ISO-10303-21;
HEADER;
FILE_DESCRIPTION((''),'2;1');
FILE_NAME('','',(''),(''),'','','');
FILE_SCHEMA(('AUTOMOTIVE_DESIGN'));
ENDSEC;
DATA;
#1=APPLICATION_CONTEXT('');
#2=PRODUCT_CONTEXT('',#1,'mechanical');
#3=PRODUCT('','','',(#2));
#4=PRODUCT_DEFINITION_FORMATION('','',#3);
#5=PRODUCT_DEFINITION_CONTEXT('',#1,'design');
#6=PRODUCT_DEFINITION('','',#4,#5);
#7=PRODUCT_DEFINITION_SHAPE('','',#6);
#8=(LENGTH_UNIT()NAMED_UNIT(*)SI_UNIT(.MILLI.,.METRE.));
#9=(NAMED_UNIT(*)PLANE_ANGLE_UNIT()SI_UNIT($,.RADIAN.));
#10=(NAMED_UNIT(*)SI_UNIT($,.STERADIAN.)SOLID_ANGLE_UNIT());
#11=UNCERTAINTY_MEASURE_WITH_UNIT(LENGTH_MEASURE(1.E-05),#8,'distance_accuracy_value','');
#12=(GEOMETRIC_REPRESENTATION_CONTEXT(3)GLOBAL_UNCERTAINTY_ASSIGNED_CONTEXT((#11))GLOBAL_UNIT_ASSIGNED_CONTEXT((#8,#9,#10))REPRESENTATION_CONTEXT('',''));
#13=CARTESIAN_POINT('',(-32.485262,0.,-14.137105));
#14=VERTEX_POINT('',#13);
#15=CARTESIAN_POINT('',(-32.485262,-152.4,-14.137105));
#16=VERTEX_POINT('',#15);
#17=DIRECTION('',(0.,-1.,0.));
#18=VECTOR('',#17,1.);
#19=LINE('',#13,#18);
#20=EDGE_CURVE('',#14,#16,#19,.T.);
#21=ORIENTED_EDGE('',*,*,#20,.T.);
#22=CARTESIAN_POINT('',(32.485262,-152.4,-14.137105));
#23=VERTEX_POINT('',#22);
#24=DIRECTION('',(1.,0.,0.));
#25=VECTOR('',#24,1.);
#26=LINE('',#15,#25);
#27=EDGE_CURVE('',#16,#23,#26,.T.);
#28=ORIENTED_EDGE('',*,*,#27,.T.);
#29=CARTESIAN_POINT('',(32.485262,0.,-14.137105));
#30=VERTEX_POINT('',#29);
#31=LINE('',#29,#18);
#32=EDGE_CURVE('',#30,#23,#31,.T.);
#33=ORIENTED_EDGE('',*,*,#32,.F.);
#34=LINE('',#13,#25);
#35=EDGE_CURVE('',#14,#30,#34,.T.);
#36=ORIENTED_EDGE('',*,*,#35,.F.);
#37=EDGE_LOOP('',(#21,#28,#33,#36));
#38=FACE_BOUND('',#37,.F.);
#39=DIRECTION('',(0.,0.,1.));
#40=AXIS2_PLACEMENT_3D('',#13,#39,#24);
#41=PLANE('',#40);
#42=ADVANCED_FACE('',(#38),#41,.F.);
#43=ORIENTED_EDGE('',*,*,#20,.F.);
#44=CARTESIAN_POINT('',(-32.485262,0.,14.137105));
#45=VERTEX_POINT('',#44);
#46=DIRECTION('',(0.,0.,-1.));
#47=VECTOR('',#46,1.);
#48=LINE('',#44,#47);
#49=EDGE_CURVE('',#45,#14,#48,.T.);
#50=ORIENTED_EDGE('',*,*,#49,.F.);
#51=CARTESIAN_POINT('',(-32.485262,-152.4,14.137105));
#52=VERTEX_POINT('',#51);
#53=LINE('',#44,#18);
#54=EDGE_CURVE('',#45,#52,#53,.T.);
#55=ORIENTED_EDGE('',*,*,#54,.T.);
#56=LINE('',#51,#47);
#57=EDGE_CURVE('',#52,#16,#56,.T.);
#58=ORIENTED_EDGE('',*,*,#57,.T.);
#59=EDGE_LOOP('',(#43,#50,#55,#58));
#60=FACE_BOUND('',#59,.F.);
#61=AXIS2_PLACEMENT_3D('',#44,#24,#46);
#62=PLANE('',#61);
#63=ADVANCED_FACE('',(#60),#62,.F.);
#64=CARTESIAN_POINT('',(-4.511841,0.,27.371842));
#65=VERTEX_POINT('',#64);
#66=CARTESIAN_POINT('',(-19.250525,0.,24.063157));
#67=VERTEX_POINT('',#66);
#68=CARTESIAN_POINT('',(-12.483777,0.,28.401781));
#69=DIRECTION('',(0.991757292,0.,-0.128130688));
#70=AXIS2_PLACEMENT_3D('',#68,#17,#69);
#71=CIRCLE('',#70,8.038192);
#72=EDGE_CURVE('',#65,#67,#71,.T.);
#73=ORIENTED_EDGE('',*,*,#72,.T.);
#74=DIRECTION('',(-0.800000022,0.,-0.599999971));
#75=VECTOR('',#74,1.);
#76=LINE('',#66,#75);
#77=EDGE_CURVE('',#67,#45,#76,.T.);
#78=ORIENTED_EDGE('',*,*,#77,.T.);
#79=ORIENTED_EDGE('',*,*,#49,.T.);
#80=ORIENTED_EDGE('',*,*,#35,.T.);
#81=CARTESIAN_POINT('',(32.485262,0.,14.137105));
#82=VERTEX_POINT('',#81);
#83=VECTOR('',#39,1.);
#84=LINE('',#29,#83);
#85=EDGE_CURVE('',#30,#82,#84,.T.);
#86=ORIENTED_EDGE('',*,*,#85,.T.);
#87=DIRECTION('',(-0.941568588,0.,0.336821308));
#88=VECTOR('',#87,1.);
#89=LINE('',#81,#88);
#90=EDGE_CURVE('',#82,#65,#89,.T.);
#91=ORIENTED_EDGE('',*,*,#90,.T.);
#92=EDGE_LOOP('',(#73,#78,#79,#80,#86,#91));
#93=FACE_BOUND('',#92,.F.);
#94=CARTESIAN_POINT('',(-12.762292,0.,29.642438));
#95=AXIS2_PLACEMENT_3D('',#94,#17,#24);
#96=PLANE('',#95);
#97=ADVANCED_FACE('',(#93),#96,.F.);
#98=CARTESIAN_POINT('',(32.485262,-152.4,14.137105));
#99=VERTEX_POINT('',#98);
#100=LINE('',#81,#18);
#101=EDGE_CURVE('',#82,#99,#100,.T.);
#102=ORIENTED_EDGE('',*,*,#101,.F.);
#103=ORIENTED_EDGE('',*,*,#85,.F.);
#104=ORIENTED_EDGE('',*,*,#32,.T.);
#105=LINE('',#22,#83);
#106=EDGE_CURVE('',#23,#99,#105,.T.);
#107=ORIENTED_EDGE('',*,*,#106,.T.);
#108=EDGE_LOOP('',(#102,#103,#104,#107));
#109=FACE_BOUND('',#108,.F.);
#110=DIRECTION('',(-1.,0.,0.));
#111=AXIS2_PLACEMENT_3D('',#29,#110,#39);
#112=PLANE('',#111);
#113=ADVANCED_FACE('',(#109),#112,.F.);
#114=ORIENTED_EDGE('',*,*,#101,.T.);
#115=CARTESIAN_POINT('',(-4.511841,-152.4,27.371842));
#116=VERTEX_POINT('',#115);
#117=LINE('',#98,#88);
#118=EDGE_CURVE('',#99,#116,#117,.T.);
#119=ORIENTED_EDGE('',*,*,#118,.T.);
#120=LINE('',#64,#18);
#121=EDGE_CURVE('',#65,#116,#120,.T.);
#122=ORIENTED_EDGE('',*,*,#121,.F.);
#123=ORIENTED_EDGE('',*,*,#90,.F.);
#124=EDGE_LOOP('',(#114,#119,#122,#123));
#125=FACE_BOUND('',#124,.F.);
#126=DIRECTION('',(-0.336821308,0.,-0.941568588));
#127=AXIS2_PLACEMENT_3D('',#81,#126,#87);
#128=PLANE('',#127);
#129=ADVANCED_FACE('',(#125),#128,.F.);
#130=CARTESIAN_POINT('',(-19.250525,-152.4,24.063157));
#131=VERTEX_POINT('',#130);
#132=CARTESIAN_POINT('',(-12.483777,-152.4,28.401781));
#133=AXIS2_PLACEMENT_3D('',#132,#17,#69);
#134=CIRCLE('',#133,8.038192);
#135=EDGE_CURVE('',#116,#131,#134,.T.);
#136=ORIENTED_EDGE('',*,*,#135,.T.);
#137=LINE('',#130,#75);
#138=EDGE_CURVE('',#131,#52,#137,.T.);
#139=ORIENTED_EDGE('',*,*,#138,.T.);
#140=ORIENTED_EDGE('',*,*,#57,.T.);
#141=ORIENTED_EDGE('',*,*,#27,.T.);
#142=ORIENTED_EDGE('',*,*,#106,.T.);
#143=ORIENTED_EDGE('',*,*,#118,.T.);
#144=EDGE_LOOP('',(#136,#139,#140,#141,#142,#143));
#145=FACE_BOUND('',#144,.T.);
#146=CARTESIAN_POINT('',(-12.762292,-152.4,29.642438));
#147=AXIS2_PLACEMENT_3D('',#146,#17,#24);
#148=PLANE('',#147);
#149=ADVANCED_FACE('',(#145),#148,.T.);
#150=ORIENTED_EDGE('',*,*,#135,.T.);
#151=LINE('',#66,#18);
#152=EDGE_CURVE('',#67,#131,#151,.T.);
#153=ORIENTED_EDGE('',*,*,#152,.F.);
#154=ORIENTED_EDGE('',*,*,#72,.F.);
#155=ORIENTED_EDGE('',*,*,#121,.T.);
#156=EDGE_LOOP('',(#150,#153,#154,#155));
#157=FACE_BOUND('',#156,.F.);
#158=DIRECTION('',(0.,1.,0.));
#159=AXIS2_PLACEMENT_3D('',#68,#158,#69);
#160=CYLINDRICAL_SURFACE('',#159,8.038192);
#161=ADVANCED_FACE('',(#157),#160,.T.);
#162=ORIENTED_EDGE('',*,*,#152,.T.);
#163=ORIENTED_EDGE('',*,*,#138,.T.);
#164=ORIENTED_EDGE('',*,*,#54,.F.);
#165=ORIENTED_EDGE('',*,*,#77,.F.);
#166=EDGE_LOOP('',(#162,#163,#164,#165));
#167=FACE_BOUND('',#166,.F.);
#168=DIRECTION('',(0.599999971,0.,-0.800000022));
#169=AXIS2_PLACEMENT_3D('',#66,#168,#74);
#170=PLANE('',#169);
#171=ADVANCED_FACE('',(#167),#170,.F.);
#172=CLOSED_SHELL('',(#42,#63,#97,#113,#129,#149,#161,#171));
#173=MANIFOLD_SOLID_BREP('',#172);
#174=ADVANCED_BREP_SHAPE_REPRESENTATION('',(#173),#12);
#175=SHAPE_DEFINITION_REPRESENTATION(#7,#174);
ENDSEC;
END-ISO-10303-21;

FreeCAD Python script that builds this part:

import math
import FreeCAD as App
import Part
import Sketcher

V = App.Vector

doc = App.newDocument("Part")
params = doc.addObject("Spreadsheet::Sheet", "Params")
for row, (alias, value) in enumerate([
    ("pad1_length", "6 in"),
], start=1):
    params.set(f"A{row}", alias)
    params.set(f"B{row}", "=" + value)
    params.setAlias(f"B{row}", alias)

body = doc.addObject("PartDesign::Body", "Body")

# Sketch on XZ plane
sketch1 = body.newObject("Sketcher::SketchObject", "Sketch")
sketch1.AttachmentSupport = (doc.getObject("XZ_Plane"), [""])
sketch1.MapMode = "FlatFace"
sketch1.addGeometry([
    Part.ArcOfCircle(Part.Circle(V(-12, 28, 0), V(0, 0, 1), 8), math.radians(-7), math.radians(213)),  # 0
    Part.LineSegment(V(-19, 24, 0), V(-32, 14, 0)),  # 1
    Part.LineSegment(V(-32, 14, 0), V(-32, -14, 0)),  # 2
    Part.LineSegment(V(-32, -14, 0), V(32, -14, 0)),  # 3
    Part.LineSegment(V(32, -14, 0), V(32, 14, 0)),  # 4
    Part.LineSegment(V(32, 14, 0), V(-5, 27, 0)),  # 5
], False)
sketch1.addConstraint([
    Sketcher.Constraint("Coincident", 0, 2, 1, 1),
    Sketcher.Constraint("Coincident", 1, 2, 2, 1),
    Sketcher.Constraint("Coincident", 2, 2, 3, 1),
    Sketcher.Constraint("Coincident", 3, 2, 4, 1),
    Sketcher.Constraint("Coincident", 4, 2, 5, 1),
    Sketcher.Constraint("Coincident", 5, 2, 0, 1),
    Sketcher.Constraint("Vertical", 2),
    Sketcher.Constraint("Horizontal", 3),
    Sketcher.Constraint("Vertical", 4),
    Sketcher.Constraint("Symmetric", 1, 2, 3, 2, -1, 1),
    Sketcher.Constraint("Horizontal", 1, 2, 4, 2),
    Sketcher.Constraint("Radius", 0, 8.038192),
    Sketcher.Constraint("DistanceY", 2, 2, 2, 1, 28.27421),
    Sketcher.Constraint("Distance", 1, 16.543421),
    Sketcher.Constraint("Distance", 5, 39.293051),
    Sketcher.Constraint("DistanceX", 3, 1, 3, 2, 64.970524),
    Sketcher.Constraint("DistanceY", -1, 1, 0, 3, 28.401781),
    Sketcher.Constraint("DistanceX", 5, 2, -1, 1, 4.511841),
])
pad1 = body.newObject("PartDesign::Pad", "Pad")
pad1.Profile = sketch1
pad1.setExpression("Length", "Params.pad1_length")

doc.recompute()
